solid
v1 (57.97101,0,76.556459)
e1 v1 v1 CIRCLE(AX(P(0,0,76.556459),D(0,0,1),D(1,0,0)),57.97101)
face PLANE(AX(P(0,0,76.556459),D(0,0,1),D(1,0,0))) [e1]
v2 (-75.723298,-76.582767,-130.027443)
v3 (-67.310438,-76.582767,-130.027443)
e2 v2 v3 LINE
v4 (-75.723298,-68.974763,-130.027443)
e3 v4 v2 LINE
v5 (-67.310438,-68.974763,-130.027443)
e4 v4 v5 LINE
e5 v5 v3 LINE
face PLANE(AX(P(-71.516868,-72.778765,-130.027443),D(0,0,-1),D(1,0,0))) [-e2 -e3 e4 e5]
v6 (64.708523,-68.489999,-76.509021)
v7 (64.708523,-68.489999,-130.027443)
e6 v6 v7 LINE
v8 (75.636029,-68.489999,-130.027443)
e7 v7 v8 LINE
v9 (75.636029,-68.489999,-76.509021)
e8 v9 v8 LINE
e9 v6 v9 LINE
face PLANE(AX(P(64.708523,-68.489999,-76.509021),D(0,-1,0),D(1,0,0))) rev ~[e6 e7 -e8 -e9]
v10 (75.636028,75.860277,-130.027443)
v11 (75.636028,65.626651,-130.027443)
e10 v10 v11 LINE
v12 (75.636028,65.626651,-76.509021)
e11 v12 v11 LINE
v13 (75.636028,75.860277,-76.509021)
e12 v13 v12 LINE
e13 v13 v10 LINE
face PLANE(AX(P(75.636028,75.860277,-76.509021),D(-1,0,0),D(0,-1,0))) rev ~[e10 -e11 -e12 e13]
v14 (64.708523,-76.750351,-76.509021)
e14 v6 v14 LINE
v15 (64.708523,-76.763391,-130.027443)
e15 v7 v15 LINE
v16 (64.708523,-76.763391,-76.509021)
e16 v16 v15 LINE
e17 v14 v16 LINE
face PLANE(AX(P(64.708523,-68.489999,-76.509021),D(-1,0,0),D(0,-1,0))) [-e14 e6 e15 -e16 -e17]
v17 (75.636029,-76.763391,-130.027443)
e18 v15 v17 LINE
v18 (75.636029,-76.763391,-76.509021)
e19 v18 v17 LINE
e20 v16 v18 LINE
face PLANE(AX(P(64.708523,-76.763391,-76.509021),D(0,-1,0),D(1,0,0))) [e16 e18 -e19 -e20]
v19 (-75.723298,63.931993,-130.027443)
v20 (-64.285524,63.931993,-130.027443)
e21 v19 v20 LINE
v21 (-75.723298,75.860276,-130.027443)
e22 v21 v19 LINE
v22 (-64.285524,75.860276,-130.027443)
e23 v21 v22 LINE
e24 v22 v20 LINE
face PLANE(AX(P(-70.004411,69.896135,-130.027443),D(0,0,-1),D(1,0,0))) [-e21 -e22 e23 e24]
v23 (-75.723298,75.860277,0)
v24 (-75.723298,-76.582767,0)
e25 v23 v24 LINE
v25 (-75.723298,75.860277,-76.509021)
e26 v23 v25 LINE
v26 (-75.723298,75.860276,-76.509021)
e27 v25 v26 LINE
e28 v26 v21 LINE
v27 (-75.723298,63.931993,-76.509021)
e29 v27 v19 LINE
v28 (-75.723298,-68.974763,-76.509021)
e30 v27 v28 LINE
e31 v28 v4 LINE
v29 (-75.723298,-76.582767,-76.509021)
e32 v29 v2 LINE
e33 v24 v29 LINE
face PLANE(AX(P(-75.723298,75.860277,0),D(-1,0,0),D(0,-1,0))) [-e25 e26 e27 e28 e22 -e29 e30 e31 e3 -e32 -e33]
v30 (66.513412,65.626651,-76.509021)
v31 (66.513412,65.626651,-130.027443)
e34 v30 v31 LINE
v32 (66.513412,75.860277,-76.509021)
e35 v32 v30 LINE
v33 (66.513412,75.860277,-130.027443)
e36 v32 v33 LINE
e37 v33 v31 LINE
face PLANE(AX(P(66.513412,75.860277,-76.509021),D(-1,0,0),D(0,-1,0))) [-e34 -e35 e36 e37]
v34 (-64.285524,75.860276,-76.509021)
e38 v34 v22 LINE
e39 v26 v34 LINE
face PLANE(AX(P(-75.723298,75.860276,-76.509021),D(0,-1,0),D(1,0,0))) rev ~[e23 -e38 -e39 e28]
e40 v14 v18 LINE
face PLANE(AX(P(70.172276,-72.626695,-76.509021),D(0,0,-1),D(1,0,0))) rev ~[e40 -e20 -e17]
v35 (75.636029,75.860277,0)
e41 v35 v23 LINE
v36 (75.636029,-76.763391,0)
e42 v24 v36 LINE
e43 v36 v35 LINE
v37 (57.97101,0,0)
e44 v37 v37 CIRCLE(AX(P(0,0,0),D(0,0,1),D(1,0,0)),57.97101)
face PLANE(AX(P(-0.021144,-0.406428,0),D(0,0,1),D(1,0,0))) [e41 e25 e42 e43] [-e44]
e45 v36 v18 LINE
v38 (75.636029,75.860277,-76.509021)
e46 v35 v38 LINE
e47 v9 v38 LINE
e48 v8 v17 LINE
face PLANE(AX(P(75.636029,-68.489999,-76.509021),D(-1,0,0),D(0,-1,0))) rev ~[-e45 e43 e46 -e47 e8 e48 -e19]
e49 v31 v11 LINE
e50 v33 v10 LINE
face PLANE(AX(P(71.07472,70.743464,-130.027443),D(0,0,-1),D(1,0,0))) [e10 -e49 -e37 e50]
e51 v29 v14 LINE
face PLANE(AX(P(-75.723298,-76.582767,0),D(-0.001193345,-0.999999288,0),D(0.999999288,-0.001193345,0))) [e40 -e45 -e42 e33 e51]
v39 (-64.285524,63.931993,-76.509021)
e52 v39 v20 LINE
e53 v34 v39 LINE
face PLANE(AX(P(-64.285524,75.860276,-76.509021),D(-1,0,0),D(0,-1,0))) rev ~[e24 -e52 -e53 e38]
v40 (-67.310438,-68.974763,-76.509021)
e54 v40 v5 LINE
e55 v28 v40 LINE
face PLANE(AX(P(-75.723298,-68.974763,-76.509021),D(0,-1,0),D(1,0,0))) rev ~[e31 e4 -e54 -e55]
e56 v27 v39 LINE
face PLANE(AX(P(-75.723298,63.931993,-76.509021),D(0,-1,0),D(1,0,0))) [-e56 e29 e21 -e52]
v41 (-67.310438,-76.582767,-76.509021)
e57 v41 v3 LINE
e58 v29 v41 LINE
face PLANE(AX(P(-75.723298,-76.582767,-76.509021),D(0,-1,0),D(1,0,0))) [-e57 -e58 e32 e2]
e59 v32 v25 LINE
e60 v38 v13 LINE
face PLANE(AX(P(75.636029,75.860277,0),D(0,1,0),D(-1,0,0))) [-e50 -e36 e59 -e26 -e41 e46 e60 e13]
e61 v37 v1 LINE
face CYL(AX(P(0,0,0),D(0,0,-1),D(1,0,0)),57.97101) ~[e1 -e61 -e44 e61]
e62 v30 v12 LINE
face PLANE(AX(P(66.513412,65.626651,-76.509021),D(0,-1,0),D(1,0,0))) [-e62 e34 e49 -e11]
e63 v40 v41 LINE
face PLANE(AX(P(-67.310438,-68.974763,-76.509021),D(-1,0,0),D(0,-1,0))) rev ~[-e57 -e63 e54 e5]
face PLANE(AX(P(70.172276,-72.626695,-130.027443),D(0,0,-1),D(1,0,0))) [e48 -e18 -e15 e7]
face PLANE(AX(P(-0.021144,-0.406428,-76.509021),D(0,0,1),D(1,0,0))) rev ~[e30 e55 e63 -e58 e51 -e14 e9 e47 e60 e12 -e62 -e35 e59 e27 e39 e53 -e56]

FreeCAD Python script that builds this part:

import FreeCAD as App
import Part
import Sketcher

V = App.Vector
Q = App.Units.Quantity

doc = App.newDocument("Part")
body = doc.addObject("PartDesign::Body", "Body")

sketch1 = body.newObject("Sketcher::SketchObject", "Sketch")
sketch1.AttachmentSupport = (doc.getObject("XY_Plane"), [""])
sketch1.MapMode = "FlatFace"
sketch1.addGeometry(Part.Circle(V(0, 0, 0), V(0, 0, 1), 58), False)
sketch1.addConstraint(Sketcher.Constraint("Coincident", 0, 3, -1, 1))
sketch1.addConstraint(Sketcher.Constraint("Diameter", 0, Q("115.94202 mm")))
pad1 = body.newObject("PartDesign::Pad", "Pad")
pad1.Profile = sketch1
pad1.Length = 76.556459

sketch2 = body.newObject("Sketcher::SketchObject", "Sketch001")
sketch2.AttachmentSupport = (doc.getObject("XY_Plane"), [""])
sketch2.MapMode = "FlatFace"
sketch2.addGeometry(Part.LineSegment(V(-76, -77, 0), V(76, -77, 0)), False)
sketch2.addGeometry(Part.LineSegment(V(76, -77, 0), V(76, 76, 0)), False)
sketch2.addGeometry(Part.LineSegment(V(76, 76, 0), V(-76, 76, 0)), False)
sketch2.addGeometry(Part.LineSegment(V(-76, 76, 0), V(-76, -77, 0)), False)
sketch2.addConstraint(Sketcher.Constraint("Coincident", 0, 2, 1, 1))
sketch2.addConstraint(Sketcher.Constraint("Coincident", 1, 2, 2, 1))
sketch2.addConstraint(Sketcher.Constraint("Coincident", 2, 2, 3, 1))
sketch2.addConstraint(Sketcher.Constraint("Coincident", 3, 2, 0, 1))
sketch2.addConstraint(Sketcher.Constraint("Vertical", 1))
sketch2.addConstraint(Sketcher.Constraint("Horizontal", 2))
sketch2.addConstraint(Sketcher.Constraint("Vertical", 3))
sketch2.addConstraint(Sketcher.Constraint("DistanceY", 1, 1, 1, 2, Q("152.623668 mm")))
sketch2.addConstraint(Sketcher.Constraint("DistanceX", 2, 2, -1, 1, Q("75.723298 mm")))
sketch2.addConstraint(Sketcher.Constraint("DistanceX", 2, 2, 2, 1, Q("151.359327 mm")))
sketch2.addConstraint(Sketcher.Constraint("DistanceY", 3, 2, 3, 1, Q("152.443044 mm")))
sketch2.addConstraint(Sketcher.Constraint("DistanceY", 0, 2, -1, 1, Q("76.763391 mm")))
pad2 = body.newObject("PartDesign::Pad", "Pad001")
pad2.Profile = sketch2
pad2.Length = 76.509021
pad2.Reversed = True

sketch3 = body.newObject("Sketcher::SketchObject", "Sketch002")
sketch3.AttachmentSupport = (doc.getObject("XY_Plane"), [""])
sketch3.MapMode = "FlatFace"
sketch3.AttachmentOffset = App.Placement(V(0, 0, -76.509021), App.Rotation())
sketch3.addGeometry(Part.LineSegment(V(-76, 64, 0), V(-76, 76, 0)), False)
sketch3.addGeometry(Part.LineSegment(V(-76, 76, 0), V(-64, 76, 0)), False)
sketch3.addGeometry(Part.LineSegment(V(-64, 76, 0), V(-64, 64, 0)), False)
sketch3.addGeometry(Part.LineSegment(V(-64, 64, 0), V(-76, 64, 0)), False)
sketch3.addGeometry(Part.LineSegment(V(67, 66, 0), V(67, 76, 0)), False)
sketch3.addGeometry(Part.LineSegment(V(67, 76, 0), V(76, 76, 0)), False)
sketch3.addGeometry(Part.LineSegment(V(76, 76, 0), V(76, 66, 0)), False)
sketch3.addGeometry(Part.LineSegment(V(76, 66, 0), V(67, 66, 0)), False)
sketch3.addGeometry(Part.LineSegment(V(65, -77, 0), V(65, -68, 0)), False)
sketch3.addGeometry(Part.LineSegment(V(65, -68, 0), V(76, -68, 0)), False)
sketch3.addGeometry(Part.LineSegment(V(76, -68, 0), V(76, -77, 0)), False)
sketch3.addGeometry(Part.LineSegment(V(76, -77, 0), V(65, -77, 0)), False)
sketch3.addGeometry(Part.LineSegment(V(-76, -77, 0), V(-76, -69, 0)), False)
sketch3.addGeometry(Part.LineSegment(V(-76, -69, 0), V(-67, -69, 0)), False)
sketch3.addGeometry(Part.LineSegment(V(-67, -69, 0), V(-67, -77, 0)), False)
sketch3.addGeometry(Part.LineSegment(V(-67, -77, 0), V(-76, -77, 0)), False)
sketch3.addConstraint(Sketcher.Constraint("Coincident", 0, 2, 1, 1))
sketch3.addConstraint(Sketcher.Constraint("Coincident", 1, 2, 2, 1))
sketch3.addConstraint(Sketcher.Constraint("Coincident", 2, 2, 3, 1))
sketch3.addConstraint(Sketcher.Constraint("Coincident", 3, 2, 0, 1))
sketch3.addConstraint(Sketcher.Constraint("Coincident", 4, 2, 5, 1))
sketch3.addConstraint(Sketcher.Constraint("Coincident", 5, 2, 6, 1))
sketch3.addConstraint(Sketcher.Constraint("Coincident", 6, 2, 7, 1))
sketch3.addConstraint(Sketcher.Constraint("Coincident", 7, 2, 4, 1))
sketch3.addConstraint(Sketcher.Constraint("Coincident", 8, 2, 9, 1))
sketch3.addConstraint(Sketcher.Constraint("Coincident", 9, 2, 10, 1))
sketch3.addConstraint(Sketcher.Constraint("Coincident", 10, 2, 11, 1))
sketch3.addConstraint(Sketcher.Constraint("Coincident", 11, 2, 8, 1))
sketch3.addConstraint(Sketcher.Constraint("Coincident", 12, 2, 13, 1))
sketch3.addConstraint(Sketcher.Constraint("Coincident", 13, 2, 14, 1))
sketch3.addConstraint(Sketcher.Constraint("Coincident", 14, 2, 15, 1))
sketch3.addConstraint(Sketcher.Constraint("Coincident", 15, 2, 12, 1))
sketch3.addConstraint(Sketcher.Constraint("Vertical", 0))
sketch3.addConstraint(Sketcher.Constraint("Horizontal", 1))
sketch3.addConstraint(Sketcher.Constraint("Vertical", 2))
sketch3.addConstraint(Sketcher.Constraint("Horizontal", 3))
sketch3.addConstraint(Sketcher.Constraint("Vertical", 4))
sketch3.addConstraint(Sketcher.Constraint("Horizontal", 5))
sketch3.addConstraint(Sketcher.Constraint("Vertical", 6))
sketch3.addConstraint(Sketcher.Constraint("Horizontal", 7))
sketch3.addConstraint(Sketcher.Constraint("Vertical", 8))
sketch3.addConstraint(Sketcher.Constraint("Horizontal", 9))
sketch3.addConstraint(Sketcher.Constraint("Vertical", 10))
sketch3.addConstraint(Sketcher.Constraint("Horizontal", 11))
sketch3.addConstraint(Sketcher.Constraint("Vertical", 12))
sketch3.addConstraint(Sketcher.Constraint("Horizontal", 13))
sketch3.addConstraint(Sketcher.Constraint("Vertical", 14))
sketch3.addConstraint(Sketcher.Constraint("Horizontal", 15))
sketch3.addConstraint(Sketcher.Constraint("Horizontal", 1, 2, 4, 2))
sketch3.addConstraint(Sketcher.Constraint("Vertical", 6, 2, 9, 2))
sketch3.addConstraint(Sketcher.Constraint("Vertical", 3, 2, 12, 2))
sketch3.addConstraint(Sketcher.Constraint("DistanceY", 8, 2, -1, 1, Q("68.489999 mm")))
sketch3.addConstraint(Sketcher.Constraint("DistanceX", 13, 1, 13, 2, Q("8.41286 mm")))
sketch3.addConstraint(Sketcher.Constraint("DistanceX", 0, 2, -1, 1, Q("75.723298 mm")))
sketch3.addConstraint(Sketcher.Constraint("DistanceX", 1, 1, 1, 2, Q("11.437774 mm")))
sketch3.addConstraint(Sketcher.Constraint("DistanceX", 5, 1, 5, 2, Q("9.122617 mm")))
sketch3.addConstraint(Sketcher.Constraint("DistanceX", 9, 1, 9, 2, Q("10.927506 mm")))
sketch3.addConstraint(Sketcher.Constraint("DistanceY", 0, 1, 0, 2, Q("11.928283 mm")))
sketch3.addConstraint(Sketcher.Constraint("DistanceY", 4, 1, 4, 2, Q("10.233626 mm")))
sketch3.addConstraint(Sketcher.Constraint("DistanceY", 8, 1, 8, 2, Q("8.273392 mm")))
sketch3.addConstraint(Sketcher.Constraint("DistanceY", 12, 1, 12, 2, Q("7.608004 mm")))
sketch3.addConstraint(Sketcher.Constraint("DistanceX", -1, 1, 4, 2, Q("66.513412 mm")))
sketch3.addConstraint(Sketcher.Constraint("DistanceY", -1, 1, 6, 2, Q("65.626651 mm")))
sketch3.addConstraint(Sketcher.Constraint("DistanceY", 11, 2, 12, 2, Q("7.788628 mm")))
pad3 = body.newObject("PartDesign::Pad", "Pad002")
pad3.Profile = sketch3
pad3.Length = 53.518422
pad3.Reversed = True

doc.recompute()
